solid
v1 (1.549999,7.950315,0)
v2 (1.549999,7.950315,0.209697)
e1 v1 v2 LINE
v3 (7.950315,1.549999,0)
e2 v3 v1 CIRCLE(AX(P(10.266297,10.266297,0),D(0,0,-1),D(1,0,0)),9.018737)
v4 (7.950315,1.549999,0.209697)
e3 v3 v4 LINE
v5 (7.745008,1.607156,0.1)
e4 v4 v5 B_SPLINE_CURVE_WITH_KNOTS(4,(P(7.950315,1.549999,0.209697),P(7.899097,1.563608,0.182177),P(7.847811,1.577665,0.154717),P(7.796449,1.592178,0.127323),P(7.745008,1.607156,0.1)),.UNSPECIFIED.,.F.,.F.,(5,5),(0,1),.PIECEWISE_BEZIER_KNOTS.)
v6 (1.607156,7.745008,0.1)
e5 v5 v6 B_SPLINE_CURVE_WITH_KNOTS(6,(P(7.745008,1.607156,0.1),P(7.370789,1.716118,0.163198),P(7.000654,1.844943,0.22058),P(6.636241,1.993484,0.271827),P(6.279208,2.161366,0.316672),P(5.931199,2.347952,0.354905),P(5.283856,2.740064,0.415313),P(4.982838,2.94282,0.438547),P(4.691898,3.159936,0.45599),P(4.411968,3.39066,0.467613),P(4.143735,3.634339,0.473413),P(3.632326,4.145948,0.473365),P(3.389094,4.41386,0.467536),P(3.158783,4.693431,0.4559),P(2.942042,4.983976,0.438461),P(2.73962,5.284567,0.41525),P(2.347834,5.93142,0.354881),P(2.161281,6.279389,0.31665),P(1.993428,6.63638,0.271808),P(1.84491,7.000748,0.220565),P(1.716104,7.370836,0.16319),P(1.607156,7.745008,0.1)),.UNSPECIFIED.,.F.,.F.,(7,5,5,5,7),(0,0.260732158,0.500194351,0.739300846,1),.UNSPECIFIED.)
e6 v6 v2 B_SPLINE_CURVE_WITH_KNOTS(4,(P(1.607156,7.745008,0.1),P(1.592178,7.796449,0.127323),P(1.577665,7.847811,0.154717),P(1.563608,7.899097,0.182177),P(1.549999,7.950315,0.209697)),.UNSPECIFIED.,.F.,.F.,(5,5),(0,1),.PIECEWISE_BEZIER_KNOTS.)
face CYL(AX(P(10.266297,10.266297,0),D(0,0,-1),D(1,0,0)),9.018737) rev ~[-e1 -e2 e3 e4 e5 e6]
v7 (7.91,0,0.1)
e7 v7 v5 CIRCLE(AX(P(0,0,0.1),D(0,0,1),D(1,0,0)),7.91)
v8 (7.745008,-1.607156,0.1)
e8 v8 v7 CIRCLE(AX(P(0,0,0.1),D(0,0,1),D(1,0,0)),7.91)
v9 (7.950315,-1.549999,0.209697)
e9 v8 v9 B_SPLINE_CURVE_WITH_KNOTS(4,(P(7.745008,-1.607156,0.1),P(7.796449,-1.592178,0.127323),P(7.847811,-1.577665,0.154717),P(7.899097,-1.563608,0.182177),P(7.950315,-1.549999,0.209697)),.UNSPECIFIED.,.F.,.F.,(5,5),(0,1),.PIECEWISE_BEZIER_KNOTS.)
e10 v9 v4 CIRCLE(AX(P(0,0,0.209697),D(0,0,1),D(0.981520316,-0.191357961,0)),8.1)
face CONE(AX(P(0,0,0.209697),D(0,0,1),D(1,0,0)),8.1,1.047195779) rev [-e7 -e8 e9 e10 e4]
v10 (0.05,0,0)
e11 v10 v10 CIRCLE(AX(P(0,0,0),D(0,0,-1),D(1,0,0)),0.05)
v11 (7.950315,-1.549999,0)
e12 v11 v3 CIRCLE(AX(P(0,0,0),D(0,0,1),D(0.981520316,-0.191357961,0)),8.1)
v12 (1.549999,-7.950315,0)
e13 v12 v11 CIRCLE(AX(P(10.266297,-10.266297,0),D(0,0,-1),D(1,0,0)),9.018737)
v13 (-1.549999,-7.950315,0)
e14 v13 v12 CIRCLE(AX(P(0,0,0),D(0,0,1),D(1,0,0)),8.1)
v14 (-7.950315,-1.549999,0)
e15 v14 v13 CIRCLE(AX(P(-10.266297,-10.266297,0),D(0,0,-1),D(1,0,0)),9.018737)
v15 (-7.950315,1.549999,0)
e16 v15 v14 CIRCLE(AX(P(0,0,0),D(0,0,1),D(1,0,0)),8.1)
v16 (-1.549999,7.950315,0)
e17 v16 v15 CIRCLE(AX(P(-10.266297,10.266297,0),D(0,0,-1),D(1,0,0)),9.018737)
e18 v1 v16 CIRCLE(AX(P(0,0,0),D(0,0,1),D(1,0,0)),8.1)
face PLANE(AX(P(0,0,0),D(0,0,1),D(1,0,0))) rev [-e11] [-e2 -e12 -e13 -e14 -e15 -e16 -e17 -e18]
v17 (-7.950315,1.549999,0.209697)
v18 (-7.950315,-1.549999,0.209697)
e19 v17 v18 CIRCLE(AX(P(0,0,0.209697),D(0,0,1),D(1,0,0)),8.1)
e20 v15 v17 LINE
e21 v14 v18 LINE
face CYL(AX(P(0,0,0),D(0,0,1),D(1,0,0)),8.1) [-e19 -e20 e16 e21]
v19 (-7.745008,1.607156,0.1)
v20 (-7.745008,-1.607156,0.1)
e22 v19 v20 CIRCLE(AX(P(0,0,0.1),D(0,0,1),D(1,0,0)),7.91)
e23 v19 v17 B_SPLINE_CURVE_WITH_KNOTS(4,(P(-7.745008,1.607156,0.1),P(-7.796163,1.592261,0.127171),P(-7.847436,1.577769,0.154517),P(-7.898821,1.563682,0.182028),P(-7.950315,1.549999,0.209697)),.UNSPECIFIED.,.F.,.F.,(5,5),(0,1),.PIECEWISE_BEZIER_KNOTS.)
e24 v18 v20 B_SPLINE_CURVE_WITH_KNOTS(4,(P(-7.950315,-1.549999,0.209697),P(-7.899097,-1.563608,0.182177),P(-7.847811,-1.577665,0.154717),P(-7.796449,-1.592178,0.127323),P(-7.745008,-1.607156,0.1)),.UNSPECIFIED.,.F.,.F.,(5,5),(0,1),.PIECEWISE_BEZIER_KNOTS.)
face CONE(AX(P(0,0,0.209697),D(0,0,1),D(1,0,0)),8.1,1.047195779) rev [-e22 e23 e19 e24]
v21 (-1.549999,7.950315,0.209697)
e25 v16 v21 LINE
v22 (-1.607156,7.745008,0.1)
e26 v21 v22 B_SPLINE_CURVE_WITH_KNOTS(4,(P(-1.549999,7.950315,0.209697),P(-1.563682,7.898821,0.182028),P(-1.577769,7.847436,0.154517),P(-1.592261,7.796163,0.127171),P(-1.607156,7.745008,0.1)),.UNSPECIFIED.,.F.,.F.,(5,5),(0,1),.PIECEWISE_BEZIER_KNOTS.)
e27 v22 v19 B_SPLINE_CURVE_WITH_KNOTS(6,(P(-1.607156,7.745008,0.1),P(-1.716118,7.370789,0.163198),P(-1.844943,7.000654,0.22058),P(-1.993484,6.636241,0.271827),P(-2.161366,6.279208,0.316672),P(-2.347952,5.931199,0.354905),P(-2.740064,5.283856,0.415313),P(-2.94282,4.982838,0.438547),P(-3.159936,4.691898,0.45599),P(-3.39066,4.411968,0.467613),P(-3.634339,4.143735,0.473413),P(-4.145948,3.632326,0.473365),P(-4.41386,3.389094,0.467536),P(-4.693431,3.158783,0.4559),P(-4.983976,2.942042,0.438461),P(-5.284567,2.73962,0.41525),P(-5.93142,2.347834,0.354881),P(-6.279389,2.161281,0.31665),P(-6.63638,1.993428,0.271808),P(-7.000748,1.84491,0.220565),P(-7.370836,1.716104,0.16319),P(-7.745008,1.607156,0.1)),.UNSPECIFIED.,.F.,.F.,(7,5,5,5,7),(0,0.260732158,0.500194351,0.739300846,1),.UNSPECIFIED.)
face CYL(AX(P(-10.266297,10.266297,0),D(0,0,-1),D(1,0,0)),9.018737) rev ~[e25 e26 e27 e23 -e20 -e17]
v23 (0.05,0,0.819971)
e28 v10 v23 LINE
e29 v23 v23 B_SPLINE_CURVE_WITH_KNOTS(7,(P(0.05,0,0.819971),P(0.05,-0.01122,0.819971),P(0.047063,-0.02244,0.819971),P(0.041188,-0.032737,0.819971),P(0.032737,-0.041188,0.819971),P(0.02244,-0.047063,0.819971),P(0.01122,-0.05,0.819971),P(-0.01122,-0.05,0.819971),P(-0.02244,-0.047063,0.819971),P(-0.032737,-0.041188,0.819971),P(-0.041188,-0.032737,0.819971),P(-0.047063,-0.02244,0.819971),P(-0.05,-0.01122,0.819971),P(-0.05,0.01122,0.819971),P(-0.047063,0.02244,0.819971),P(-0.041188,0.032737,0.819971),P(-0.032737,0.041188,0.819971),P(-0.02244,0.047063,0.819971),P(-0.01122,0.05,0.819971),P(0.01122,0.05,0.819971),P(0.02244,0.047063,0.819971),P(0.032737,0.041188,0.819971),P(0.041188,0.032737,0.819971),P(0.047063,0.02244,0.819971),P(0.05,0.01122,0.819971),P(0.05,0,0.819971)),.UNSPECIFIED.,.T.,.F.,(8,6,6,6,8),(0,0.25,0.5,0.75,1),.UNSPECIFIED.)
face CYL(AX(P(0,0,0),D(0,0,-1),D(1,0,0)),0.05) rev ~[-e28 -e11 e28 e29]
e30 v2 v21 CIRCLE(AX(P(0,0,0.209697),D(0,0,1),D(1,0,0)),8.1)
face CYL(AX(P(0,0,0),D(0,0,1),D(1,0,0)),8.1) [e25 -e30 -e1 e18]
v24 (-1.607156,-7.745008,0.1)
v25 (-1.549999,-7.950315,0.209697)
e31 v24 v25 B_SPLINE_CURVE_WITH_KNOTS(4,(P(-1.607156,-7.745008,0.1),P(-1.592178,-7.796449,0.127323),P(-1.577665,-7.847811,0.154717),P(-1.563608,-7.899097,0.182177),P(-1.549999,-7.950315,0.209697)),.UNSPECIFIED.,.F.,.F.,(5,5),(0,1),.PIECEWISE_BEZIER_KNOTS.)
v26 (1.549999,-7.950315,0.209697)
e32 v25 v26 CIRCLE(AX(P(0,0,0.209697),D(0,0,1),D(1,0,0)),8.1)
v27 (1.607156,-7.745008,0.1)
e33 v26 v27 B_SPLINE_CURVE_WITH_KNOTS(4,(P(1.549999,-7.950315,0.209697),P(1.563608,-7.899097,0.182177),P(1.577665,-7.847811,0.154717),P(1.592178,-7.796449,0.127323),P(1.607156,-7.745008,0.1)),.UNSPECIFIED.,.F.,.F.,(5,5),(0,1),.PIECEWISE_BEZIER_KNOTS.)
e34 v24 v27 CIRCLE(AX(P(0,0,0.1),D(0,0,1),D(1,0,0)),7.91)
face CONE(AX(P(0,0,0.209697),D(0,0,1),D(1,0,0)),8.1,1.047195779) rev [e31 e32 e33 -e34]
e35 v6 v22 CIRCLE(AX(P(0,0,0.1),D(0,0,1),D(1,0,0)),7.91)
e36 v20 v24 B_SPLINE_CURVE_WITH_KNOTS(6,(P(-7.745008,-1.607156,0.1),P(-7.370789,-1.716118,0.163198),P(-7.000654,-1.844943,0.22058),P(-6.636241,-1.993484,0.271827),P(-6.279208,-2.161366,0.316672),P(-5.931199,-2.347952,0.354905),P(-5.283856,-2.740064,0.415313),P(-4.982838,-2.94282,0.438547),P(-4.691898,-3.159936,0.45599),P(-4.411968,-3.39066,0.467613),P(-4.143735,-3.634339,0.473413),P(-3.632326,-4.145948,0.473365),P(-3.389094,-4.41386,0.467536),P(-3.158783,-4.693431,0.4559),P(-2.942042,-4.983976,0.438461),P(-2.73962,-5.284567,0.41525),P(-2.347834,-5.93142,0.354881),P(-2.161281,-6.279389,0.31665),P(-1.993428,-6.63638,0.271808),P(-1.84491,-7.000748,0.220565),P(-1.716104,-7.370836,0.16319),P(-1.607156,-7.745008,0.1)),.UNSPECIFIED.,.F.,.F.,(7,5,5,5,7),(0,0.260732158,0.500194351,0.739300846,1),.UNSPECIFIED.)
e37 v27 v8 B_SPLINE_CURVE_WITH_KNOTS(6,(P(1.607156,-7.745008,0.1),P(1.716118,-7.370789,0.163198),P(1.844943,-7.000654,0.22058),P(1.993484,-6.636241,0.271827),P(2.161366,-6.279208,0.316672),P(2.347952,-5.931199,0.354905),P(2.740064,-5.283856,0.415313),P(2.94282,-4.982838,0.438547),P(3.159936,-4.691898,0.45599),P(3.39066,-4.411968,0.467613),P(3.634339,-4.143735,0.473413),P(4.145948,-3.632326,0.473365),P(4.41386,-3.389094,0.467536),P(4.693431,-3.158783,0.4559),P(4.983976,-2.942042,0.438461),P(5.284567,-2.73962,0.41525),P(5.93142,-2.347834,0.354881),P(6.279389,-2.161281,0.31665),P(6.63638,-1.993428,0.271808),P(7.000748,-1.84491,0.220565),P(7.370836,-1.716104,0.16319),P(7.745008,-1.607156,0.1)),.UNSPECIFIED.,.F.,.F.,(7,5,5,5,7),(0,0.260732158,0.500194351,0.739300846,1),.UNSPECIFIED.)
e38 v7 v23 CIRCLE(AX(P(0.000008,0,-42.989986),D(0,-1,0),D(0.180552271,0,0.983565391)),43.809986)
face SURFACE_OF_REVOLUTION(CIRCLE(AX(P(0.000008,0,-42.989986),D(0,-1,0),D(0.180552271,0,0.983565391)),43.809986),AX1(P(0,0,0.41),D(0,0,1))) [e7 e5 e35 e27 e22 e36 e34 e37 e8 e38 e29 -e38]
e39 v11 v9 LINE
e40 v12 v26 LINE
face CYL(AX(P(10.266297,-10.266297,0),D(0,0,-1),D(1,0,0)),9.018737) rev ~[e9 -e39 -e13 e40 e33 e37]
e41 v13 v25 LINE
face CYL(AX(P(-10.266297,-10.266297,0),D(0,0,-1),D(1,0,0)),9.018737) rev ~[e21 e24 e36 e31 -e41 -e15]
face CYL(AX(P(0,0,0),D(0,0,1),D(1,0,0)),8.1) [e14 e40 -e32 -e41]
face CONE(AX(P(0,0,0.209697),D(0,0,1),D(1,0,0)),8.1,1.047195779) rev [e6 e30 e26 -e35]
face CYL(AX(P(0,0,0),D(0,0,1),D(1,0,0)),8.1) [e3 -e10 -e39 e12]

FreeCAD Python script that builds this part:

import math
import FreeCAD as App
import Part
import Sketcher
Q = App.Units.Quantity

doc = App.newDocument("Part")
params = doc.addObject("Spreadsheet::Sheet", "Params")
for row, (alias, value) in enumerate([
    ("sketch1_width", "8.1 mm"),
    ("sketch1_height", "0.82 mm"),
    ("revolution_angle", "360 deg"),
    ("sketch3_diameter", "0.1 mm"),
    ("pocket2_length", "25 mm"),
], start=1):
    params.set(f"A{row}", alias)
    params.set(f"B{row}", "=" + value)
    params.setAlias(f"B{row}", alias)

body = doc.addObject("PartDesign::Body", "Body")

# Sketch on XZ plane
sketch1 = doc.addObject("Sketcher::SketchObject", "Sketch")
body.addObject(sketch1)
sketch1.AttachmentSupport = (doc.XZ_Plane, [""])
sketch1.MapMode = "FlatFace"
sketch1.addGeometry([
    Part.LineSegment(App.Vector(8.1, 0.21, 0), App.Vector(7.91, 0.1, 0)),  # 0
    Part.ArcOfCircle(Part.Circle(App.Vector(0, -42.99, 0), App.Vector(0, 0, 1), 43.81), math.radians(79.6), math.radians(90)),  # 1
    Part.LineSegment(App.Vector(0, 0.82, 0), App.Vector(0, 0, 0)),  # 2
    Part.LineSegment(App.Vector(0, 0, 0), App.Vector(8.1, 0, 0)),  # 3
    Part.LineSegment(App.Vector(8.1, 0, 0), App.Vector(8.1, 0.21, 0)),  # 4
], False)
sketch1.addConstraint([
    Sketcher.Constraint("Coincident", 0, 2, 1, 1),
    Sketcher.Constraint("Coincident", 1, 2, 2, 1),
    Sketcher.Constraint("Coincident", 2, 2, 3, 1),
    Sketcher.Constraint("Coincident", 3, 2, 4, 1),
    Sketcher.Constraint("Coincident", 4, 2, 0, 1),
    Sketcher.Constraint("Vertical", 2),
    Sketcher.Constraint("Horizontal", 3),
    Sketcher.Constraint("Vertical", 4),
    Sketcher.Constraint("Coincident", 2, 2, -1, 1),
    Sketcher.Constraint("DistanceX", 3, 1, 3, 2, Q("8.1 mm")),
    Sketcher.Constraint("DistanceY", 2, 2, 2, 1, Q("0.82 mm")),
    Sketcher.Constraint("DistanceY", -1, 1, 0, 2, Q("0.1 mm")),
    Sketcher.Constraint("DistanceX", -1, 1, 0, 2, Q("7.91 mm")),
    Sketcher.Constraint("Radius", 1, Q("43.809986 mm")),
    Sketcher.Constraint("DistanceY", 4, 1, 4, 2, Q("0.209697 mm")),
])
sketch1.setExpression("Constraints[9]", "Params.sketch1_width")
sketch1.setExpression("Constraints[10]", "Params.sketch1_height")
revolution = doc.addObject("PartDesign::Revolution", "Revolution")
body.addObject(revolution)
revolution.Profile = sketch1
revolution.ReferenceAxis = (sketch1, ["V_Axis"])
revolution.setExpression("Angle", "Params.revolution_angle")

# Sketch on XY plane
sketch2 = doc.addObject("Sketcher::SketchObject", "Sketch001")
body.addObject(sketch2)
sketch2.AttachmentSupport = (doc.XY_Plane, [""])
sketch2.MapMode = "FlatFace"
sketch2.addGeometry([
    Part.Circle(App.Vector(-10, -10, 0), App.Vector(0, 0, 1), 9),
    Part.Circle(App.Vector(10, -10, 0), App.Vector(0, 0, 1), 9),
    Part.Circle(App.Vector(-10, 10, 0), App.Vector(0, 0, 1), 9),
    Part.Circle(App.Vector(10, 10, 0), App.Vector(0, 0, 1), 9),
], False)
sketch2.addConstraint([
    Sketcher.Constraint("Equal", 0, 1),
    Sketcher.Constraint("Equal", 1, 2),
    Sketcher.Constraint("Equal", 2, 3),
    Sketcher.Constraint("Symmetric", 1, 3, 2, 3, -1, 1),
    Sketcher.Constraint("Symmetric", 0, 3, 3, 3, -1, 1),
    Sketcher.Constraint("Symmetric", 0, 3, 1, 3, -2),
    Sketcher.Constraint("Diameter", 0, Q("18.037474 mm")),
    Sketcher.Constraint("DistanceX", 0, 3, -1, 1, Q("10.266297 mm")),
    Sketcher.Constraint("DistanceY", 0, 3, -1, 1, Q("10.266297 mm")),
])
pocket1 = doc.addObject("PartDesign::Pocket", "Pocket")
body.addObject(pocket1)
pocket1.Profile = sketch2
pocket1.Type = "ThroughAll"
pocket1.Reversed = True

# Sketch on XY plane
sketch3 = doc.addObject("Sketcher::SketchObject", "Sketch002")
body.addObject(sketch3)
sketch3.AttachmentSupport = (doc.XY_Plane, [""])
sketch3.MapMode = "FlatFace"
sketch3.addGeometry(Part.Circle(App.Vector(0, 0, 0), App.Vector(0, 0, 1), 0.05), False)
sketch3.addConstraint([
    Sketcher.Constraint("Coincident", 0, 3, -1, 1),
    Sketcher.Constraint("Diameter", 0, Q("0.1 mm")),
])
sketch3.setExpression("Constraints[1]", "Params.sketch3_diameter")
pocket2 = doc.addObject("PartDesign::Pocket", "Pocket001")
body.addObject(pocket2)
pocket2.Profile = sketch3
pocket2.setExpression("Length", "Params.pocket2_length")
pocket2.Reversed = True

doc.recompute()
